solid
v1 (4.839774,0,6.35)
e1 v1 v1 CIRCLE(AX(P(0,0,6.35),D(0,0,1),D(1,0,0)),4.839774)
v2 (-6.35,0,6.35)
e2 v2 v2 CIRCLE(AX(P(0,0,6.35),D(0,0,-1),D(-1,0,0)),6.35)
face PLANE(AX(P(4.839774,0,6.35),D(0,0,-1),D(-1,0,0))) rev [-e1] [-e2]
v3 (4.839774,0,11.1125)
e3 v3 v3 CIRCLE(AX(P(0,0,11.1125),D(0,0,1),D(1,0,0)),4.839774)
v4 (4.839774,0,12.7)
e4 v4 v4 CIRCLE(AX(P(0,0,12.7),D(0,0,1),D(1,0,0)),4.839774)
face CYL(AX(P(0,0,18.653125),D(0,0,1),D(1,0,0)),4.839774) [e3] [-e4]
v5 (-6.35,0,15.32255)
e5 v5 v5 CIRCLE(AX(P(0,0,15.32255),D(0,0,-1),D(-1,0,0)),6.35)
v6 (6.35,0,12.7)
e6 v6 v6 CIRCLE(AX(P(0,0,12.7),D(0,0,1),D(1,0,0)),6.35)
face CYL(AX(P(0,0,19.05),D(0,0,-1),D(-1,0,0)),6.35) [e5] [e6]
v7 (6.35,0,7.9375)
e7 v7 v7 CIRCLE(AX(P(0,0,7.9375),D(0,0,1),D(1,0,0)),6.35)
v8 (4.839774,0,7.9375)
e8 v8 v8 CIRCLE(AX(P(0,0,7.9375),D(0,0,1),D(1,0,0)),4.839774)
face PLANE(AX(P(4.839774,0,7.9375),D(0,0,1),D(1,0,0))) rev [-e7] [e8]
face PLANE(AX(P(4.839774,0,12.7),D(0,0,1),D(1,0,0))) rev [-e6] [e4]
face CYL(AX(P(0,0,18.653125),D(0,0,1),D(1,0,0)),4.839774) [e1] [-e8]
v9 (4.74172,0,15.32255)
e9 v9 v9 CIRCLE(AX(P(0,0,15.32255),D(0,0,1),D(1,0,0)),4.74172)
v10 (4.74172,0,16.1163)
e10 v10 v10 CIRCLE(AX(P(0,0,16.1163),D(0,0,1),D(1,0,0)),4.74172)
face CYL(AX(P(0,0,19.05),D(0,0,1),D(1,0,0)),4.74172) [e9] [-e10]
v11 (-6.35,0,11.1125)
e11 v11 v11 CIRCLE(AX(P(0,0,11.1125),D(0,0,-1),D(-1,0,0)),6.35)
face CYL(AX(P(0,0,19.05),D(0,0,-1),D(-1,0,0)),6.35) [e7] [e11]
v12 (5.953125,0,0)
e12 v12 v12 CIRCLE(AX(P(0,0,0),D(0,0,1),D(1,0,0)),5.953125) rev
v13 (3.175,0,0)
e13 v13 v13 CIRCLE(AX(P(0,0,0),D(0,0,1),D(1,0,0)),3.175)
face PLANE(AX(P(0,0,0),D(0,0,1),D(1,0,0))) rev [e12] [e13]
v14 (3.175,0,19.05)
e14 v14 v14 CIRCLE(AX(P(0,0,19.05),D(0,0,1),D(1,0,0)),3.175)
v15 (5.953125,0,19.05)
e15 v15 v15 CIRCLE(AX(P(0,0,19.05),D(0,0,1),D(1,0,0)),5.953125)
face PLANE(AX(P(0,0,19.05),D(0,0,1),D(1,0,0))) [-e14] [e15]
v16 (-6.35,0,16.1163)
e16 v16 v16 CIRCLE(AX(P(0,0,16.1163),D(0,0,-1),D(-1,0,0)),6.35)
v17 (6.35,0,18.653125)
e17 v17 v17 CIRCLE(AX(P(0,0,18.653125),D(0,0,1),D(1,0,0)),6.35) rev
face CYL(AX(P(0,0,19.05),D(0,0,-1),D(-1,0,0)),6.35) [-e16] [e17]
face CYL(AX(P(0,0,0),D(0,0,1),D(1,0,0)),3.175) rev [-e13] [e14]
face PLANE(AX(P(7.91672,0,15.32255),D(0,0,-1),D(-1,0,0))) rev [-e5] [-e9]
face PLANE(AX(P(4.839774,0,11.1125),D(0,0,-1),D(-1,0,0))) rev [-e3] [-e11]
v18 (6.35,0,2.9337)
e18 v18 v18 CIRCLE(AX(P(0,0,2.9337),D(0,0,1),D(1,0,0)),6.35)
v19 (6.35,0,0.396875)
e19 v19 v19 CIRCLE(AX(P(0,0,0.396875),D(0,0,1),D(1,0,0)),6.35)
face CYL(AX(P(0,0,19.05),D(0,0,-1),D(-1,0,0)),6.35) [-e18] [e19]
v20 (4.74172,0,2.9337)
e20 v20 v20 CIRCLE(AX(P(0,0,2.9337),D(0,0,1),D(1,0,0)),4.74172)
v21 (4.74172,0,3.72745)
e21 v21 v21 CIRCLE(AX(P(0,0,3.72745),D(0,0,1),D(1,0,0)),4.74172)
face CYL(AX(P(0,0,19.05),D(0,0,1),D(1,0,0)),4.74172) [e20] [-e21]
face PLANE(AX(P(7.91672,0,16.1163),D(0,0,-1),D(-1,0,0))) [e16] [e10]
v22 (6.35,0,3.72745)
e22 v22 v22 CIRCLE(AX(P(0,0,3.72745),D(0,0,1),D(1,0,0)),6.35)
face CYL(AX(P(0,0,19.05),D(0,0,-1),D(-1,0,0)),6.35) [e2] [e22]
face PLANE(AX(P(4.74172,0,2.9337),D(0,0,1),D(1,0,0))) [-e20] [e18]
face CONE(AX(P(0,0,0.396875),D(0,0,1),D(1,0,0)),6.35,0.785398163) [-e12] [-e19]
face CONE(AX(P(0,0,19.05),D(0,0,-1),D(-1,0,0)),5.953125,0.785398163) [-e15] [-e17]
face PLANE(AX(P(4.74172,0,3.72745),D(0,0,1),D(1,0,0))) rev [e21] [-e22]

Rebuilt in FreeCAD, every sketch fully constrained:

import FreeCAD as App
import Part
import Sketcher
from FreeCAD import Vector
Q = App.Units.Quantity


def edges_at(feature, points):
    """Names of the edges that pass closest to the given points."""
    edges = feature.Shape.Edges
    near = lambda p: min(range(len(edges)), key=lambda i: edges[i].distToShape(Part.Vertex(*p))[0])
    return sorted({f"Edge{near(p) + 1}" for p in points})


def add_polygon(sketch, points):
    """Adds a closed chain of lines whose ends are joined by coincident constraints."""
    first, n = sketch.GeometryCount, len(points)
    for a, b in zip(points, points[1:] + points[:1]):
        sketch.addGeometry(Part.LineSegment(App.Vector(*a, 0), App.Vector(*b, 0)), False)
    for i in range(n):
        sketch.addConstraint(Sketcher.Constraint("Coincident", first + i, 2, first + (i + 1) % n, 1))

doc = App.newDocument("Part")
body = doc.addObject("PartDesign::Body", "Body")

sketch1 = body.newObject("Sketcher::SketchObject", "Sketch")
sketch1.AttachmentSupport = (doc.getObject("XY_Plane"), [""])
sketch1.MapMode = "FlatFace"
sketch1.addGeometry(Part.Circle(Vector(0, 0, 0), Vector(0, 0, 1), 6.35), False)
sketch1.addConstraint(Sketcher.Constraint("Coincident", 0, 3, -1, 1))
sketch1.addConstraint(Sketcher.Constraint("Diameter", 0, Q("0.5 in")))
pad1 = body.newObject("PartDesign::Pad", "Pad")
pad1.Profile = sketch1
pad1.Length = Q("0.75 in")

sketch2 = body.newObject("Sketcher::SketchObject", "Sketch001")
sketch2.AttachmentSupport = (doc.getObject("XY_Plane"), [""])
sketch2.MapMode = "FlatFace"
sketch2.AttachmentOffset = App.Placement(Vector(0, 0, 0.75 * 25.4), App.Rotation())
sketch2.addGeometry(Part.Circle(Vector(0, 0, 0), Vector(0, 0, 1), 3.175), False)
sketch2.addConstraint(Sketcher.Constraint("Coincident", 0, 3, -1, 1))
sketch2.addConstraint(Sketcher.Constraint("Diameter", 0, Q("0.25 in")))
pocket1 = body.newObject("PartDesign::Pocket", "Pocket")
pocket1.Profile = sketch2
pocket1.Type = "ThroughAll"

sketch3 = body.newObject("Sketcher::SketchObject", "Sketch002")
sketch3.AttachmentSupport = (doc.getObject("XZ_Plane"), [""])
sketch3.MapMode = "FlatFace"
add_polygon(sketch3, [(4.74172, 15.32255), (4.74172, 16.1163), (7.91672, 16.1163), (7.91672, 15.32255)])
add_polygon(sketch3, [(4.74172, 2.9337), (4.74172, 3.72745), (7.91672, 3.72745), (7.91672, 2.9337)])
sketch3.addConstraint(Sketcher.Constraint("Vertical", 0))
sketch3.addConstraint(Sketcher.Constraint("Horizontal", 1))
sketch3.addConstraint(Sketcher.Constraint("Vertical", 2))
sketch3.addConstraint(Sketcher.Constraint("Horizontal", 3))
sketch3.addConstraint(Sketcher.Constraint("Vertical", 4))
sketch3.addConstraint(Sketcher.Constraint("Horizontal", 5))
sketch3.addConstraint(Sketcher.Constraint("Vertical", 6))
sketch3.addConstraint(Sketcher.Constraint("Horizontal", 7))
sketch3.addConstraint(Sketcher.Constraint("Vertical", 3, 2, 4, 2))
sketch3.addConstraint(Sketcher.Constraint("Vertical", 2, 2, 5, 2))
sketch3.addConstraint(Sketcher.Constraint("Equal", 2, 4))
sketch3.addConstraint(Sketcher.Constraint("DistanceX", 1, 1, 1, 2, Q("0.125 in")))
sketch3.addConstraint(Sketcher.Constraint("DistanceY", 0, 1, 0, 2, Q("0.03125 in")))
sketch3.addConstraint(Sketcher.Constraint("DistanceY", 6, 2, 1, 2, Q("0.519 in")))
sketch3.addConstraint(Sketcher.Constraint("DistanceY", -1, 1, 0, 2, Q("0.6345 in")))
sketch3.addConstraint(Sketcher.Constraint("DistanceX", -1, 1, 0, 2, Q("4.74172 mm")))
groove = body.newObject("PartDesign::Groove", "Groove")
groove.Profile = sketch3
groove.ReferenceAxis = (sketch3, ["V_Axis"])
groove.Angle = 360
doc.recompute()

chamfer = body.newObject("PartDesign::Chamfer", "Chamfer")
chamfer.Base = (groove, edges_at(groove, [(-6.35, 0, 0), (-6.35, 0, 19.05)]))
chamfer.Size = Q("0.015625 in")

sketch4 = body.newObject("Sketcher::SketchObject", "Sketch003")
sketch4.AttachmentSupport = (doc.getObject("XZ_Plane"), [""])
sketch4.MapMode = "FlatFace"
add_polygon(sketch4, [(4.839774, 11.1125), (4.839774, 12.7), (7.860226, 12.7), (7.860226, 11.1125)])
add_polygon(sketch4, [(4.839774, 6.35), (4.839774, 7.9375), (7.860226, 7.9375), (7.860226, 6.35)])
sketch4.addConstraint(Sketcher.Constraint("Vertical", 0))
sketch4.addConstraint(Sketcher.Constraint("Horizontal", 1))
sketch4.addConstraint(Sketcher.Constraint("Vertical", 2))
sketch4.addConstraint(Sketcher.Constraint("Horizontal", 3))
sketch4.addConstraint(Sketcher.Constraint("Vertical", 4))
sketch4.addConstraint(Sketcher.Constraint("Horizontal", 5))
sketch4.addConstraint(Sketcher.Constraint("Vertical", 6))
sketch4.addConstraint(Sketcher.Constraint("Horizontal", 7))
sketch4.addConstraint(Sketcher.Constraint("Vertical", 3, 2, 4, 2))
sketch4.addConstraint(Sketcher.Constraint("Vertical", 2, 2, 5, 2))
sketch4.addConstraint(Sketcher.Constraint("Equal", 2, 4))
sketch4.addConstraint(Sketcher.Constraint("DistanceY", -1, 1, 0, 2, Q("0.5 in")))
sketch4.addConstraint(Sketcher.Constraint("DistanceY", 0, 1, 0, 2, Q("0.0625 in")))
sketch4.addConstraint(Sketcher.Constraint("DistanceY", -1, 1, 6, 2, Q("0.25 in")))
sketch4.addConstraint(Sketcher.Constraint("DistanceX", 1, 1, 1, 2, Q("3.020451 mm")))
sketch4.addConstraint(Sketcher.Constraint("DistanceX", -1, 1, 0, 2, Q("4.839774 mm")))
groove2 = body.newObject("PartDesign::Groove", "Groove001")
groove2.Profile = sketch4
groove2.ReferenceAxis = (sketch4, ["V_Axis"])
groove2.Angle = 360

doc.recompute()
